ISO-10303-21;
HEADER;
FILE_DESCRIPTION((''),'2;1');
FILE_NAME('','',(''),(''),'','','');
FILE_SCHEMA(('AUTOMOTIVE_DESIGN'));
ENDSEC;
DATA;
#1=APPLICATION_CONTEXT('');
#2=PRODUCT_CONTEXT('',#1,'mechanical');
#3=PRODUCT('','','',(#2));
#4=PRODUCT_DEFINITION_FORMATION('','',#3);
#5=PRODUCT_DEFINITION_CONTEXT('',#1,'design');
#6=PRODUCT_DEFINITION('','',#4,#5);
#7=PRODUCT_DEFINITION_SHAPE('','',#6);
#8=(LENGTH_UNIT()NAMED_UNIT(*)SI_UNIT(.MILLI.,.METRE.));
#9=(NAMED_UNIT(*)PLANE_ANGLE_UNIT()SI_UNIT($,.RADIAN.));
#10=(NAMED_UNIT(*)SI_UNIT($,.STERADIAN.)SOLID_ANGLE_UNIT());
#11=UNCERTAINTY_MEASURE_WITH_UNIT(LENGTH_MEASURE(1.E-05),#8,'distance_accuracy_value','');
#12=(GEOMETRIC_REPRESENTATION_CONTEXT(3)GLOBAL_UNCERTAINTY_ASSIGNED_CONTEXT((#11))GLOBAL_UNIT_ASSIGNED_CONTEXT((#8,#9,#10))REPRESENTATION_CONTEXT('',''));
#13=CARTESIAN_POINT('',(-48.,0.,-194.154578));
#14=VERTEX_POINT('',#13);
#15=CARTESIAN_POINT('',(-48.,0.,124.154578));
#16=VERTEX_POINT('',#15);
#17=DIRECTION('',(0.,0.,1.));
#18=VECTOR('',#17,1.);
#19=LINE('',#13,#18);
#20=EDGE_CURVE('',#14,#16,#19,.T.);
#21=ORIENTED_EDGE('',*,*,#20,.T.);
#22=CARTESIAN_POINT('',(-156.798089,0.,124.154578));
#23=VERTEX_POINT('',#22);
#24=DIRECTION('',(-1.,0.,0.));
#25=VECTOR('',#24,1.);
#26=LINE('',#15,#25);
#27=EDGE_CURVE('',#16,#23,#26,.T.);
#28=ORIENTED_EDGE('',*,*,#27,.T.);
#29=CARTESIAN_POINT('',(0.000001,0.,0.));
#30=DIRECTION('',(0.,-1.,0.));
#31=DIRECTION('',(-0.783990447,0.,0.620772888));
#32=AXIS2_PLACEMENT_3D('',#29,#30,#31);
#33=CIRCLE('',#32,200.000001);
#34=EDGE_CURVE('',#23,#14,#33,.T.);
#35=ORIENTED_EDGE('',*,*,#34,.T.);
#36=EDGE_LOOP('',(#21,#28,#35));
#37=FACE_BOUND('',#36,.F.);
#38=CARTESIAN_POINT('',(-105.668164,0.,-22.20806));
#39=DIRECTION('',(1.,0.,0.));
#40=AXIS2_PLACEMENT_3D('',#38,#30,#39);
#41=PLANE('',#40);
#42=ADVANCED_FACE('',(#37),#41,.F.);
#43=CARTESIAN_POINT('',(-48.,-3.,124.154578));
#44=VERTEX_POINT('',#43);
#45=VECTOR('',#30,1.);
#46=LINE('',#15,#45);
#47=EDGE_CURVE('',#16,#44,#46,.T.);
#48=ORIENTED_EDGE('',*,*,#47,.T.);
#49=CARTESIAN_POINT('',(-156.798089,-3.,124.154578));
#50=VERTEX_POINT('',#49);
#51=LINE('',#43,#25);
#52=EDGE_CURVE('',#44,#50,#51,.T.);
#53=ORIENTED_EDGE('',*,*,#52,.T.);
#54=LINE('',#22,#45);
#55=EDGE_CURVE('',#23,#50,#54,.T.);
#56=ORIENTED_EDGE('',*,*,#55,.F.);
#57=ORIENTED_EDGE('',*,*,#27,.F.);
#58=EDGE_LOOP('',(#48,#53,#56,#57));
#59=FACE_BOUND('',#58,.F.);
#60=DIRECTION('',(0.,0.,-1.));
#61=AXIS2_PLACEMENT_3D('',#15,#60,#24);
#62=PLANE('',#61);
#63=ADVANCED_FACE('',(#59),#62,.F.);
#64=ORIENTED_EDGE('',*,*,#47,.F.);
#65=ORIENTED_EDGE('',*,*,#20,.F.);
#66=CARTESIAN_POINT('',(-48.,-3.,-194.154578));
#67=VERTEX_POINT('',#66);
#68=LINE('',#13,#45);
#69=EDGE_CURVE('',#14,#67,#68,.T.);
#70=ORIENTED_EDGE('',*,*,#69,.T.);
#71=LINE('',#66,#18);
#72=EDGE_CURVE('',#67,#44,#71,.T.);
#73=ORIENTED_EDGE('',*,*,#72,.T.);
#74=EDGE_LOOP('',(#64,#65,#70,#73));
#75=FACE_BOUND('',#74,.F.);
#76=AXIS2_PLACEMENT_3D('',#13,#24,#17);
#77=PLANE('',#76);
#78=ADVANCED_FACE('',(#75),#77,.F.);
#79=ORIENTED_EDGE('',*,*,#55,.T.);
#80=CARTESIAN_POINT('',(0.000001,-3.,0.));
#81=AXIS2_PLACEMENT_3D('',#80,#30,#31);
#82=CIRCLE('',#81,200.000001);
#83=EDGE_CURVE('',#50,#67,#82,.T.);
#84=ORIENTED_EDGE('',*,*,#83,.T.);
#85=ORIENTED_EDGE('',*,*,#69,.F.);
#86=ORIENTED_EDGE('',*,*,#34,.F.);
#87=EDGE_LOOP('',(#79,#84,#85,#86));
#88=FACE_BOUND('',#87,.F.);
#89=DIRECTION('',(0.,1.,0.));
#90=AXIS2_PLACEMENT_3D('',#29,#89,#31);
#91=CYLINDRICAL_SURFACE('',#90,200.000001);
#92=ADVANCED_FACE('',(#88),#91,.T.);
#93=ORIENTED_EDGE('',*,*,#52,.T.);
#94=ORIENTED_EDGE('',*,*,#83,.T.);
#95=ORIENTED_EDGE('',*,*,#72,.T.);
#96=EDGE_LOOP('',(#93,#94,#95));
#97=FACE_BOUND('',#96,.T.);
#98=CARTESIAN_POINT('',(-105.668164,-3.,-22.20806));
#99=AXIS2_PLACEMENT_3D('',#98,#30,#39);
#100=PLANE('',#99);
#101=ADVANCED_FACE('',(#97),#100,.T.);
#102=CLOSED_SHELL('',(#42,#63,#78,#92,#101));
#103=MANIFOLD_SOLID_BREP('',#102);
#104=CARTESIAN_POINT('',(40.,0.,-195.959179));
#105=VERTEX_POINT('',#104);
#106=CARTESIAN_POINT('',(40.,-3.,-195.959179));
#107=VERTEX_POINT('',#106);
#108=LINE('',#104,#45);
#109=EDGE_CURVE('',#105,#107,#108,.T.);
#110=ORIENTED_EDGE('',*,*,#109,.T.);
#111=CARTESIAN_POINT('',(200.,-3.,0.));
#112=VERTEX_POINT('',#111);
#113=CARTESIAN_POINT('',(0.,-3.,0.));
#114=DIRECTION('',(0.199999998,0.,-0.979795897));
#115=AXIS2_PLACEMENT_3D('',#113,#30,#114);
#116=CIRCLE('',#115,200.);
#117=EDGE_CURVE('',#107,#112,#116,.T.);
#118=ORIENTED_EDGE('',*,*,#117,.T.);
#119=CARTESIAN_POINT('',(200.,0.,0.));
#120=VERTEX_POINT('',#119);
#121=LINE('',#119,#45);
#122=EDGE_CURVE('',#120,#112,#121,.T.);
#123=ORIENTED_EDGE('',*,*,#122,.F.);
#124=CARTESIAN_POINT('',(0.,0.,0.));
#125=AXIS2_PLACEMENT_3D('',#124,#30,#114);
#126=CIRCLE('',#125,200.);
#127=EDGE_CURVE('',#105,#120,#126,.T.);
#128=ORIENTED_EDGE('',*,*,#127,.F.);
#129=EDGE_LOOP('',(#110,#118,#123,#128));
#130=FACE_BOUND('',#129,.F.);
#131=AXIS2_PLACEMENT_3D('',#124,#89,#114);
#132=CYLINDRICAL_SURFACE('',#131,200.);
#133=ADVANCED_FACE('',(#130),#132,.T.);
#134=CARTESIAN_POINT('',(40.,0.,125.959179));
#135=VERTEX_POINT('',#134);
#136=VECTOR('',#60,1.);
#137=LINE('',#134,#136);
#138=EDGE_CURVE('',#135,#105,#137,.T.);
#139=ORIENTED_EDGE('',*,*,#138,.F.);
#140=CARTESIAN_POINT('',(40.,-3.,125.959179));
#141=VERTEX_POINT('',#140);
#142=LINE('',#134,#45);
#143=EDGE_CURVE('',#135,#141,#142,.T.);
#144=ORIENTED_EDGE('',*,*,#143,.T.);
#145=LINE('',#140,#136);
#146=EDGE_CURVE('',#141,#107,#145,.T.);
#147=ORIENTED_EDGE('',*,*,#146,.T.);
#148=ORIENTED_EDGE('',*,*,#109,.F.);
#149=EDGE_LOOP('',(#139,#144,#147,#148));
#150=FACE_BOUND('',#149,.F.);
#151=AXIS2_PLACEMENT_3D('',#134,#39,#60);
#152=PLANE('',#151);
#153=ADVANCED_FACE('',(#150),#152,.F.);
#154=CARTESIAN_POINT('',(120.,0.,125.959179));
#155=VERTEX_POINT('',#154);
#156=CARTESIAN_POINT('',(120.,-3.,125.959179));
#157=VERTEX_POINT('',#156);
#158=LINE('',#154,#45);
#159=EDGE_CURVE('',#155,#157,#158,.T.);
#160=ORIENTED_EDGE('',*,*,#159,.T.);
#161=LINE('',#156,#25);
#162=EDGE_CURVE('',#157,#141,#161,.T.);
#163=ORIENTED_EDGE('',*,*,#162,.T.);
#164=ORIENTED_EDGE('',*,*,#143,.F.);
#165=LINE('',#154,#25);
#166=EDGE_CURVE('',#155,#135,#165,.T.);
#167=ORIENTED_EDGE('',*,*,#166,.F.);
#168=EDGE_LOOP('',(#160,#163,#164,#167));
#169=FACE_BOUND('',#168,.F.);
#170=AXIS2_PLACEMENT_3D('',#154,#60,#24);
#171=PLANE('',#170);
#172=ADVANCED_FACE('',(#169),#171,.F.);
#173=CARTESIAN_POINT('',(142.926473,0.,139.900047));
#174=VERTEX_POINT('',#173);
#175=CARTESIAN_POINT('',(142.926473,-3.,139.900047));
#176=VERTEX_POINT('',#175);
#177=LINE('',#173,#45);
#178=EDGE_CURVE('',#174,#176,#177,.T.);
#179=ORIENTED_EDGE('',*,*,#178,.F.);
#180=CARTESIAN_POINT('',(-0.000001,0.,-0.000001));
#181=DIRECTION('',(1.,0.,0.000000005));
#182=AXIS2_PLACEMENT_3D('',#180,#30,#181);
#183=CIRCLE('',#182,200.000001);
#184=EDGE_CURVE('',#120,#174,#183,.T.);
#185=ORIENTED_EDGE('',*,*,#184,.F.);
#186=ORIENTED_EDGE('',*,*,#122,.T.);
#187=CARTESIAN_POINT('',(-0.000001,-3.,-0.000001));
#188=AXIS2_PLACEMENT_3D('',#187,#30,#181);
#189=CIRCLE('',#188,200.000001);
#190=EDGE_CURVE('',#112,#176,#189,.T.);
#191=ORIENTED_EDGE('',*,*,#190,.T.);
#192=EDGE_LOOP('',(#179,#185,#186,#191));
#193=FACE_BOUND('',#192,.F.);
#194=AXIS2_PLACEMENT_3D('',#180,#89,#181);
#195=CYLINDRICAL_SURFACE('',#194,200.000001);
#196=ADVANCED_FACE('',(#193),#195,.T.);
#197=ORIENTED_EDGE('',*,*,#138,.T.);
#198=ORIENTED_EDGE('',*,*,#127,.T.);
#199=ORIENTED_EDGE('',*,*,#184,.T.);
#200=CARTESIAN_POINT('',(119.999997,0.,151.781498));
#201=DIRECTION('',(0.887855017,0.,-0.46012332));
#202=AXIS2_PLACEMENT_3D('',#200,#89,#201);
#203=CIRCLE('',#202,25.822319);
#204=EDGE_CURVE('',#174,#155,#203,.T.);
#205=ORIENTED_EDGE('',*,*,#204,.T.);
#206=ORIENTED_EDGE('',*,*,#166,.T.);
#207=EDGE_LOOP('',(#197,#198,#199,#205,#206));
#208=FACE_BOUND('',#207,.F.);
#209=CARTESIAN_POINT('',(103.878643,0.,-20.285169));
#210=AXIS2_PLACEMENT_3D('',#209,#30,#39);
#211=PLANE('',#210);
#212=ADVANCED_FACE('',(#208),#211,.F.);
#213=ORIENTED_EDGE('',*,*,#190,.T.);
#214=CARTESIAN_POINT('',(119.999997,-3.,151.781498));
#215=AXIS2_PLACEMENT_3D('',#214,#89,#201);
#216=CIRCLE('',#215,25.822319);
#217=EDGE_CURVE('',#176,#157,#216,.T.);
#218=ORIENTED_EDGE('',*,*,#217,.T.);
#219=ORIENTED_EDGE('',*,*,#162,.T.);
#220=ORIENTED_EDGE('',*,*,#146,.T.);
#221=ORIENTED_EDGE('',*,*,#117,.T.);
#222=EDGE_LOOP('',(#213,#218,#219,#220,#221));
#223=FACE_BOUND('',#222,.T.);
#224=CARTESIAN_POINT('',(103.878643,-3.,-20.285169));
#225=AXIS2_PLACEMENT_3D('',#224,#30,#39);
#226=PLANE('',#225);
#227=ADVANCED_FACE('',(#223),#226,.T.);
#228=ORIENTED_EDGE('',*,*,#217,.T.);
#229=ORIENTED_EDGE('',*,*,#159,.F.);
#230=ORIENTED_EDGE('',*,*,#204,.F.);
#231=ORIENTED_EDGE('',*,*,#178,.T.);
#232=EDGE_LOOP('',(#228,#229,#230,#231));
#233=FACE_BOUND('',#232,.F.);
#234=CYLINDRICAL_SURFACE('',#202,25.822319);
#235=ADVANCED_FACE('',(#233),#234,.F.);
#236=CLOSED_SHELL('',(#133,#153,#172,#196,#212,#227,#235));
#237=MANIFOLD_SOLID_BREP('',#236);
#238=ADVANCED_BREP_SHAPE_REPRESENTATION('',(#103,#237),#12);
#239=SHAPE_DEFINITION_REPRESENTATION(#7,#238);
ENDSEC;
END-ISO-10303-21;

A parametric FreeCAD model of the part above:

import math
import FreeCAD as App
import Part
import Sketcher
from FreeCAD import Vector

doc = App.newDocument("Part")
params = doc.addObject("Spreadsheet::Sheet", "Params")
for row, (alias, value) in enumerate([
    ("sketch1_radius", "200 mm"),
    ("sketch1_width", "80 mm"),
    ("pad1_length", "3 mm"),
    ("sketch2_radius", "200.000001 mm"),
    ("pad2_length", "3 mm"),
], start=1):
    params.set(f"A{row}", alias)
    params.set(f"B{row}", "=" + value)
    params.setAlias(f"B{row}", alias)

body = doc.addObject("PartDesign::Body", "Body")

# Sketch on XZ plane
sketch1 = body.newObject("Sketcher::SketchObject", "Sketch")
sketch1.AttachmentSupport = (doc.getObject("XZ_Plane"), [""])
sketch1.MapMode = "FlatFace"
sketch1.addGeometry([
    Part.ArcOfCircle(Part.Circle(Vector(0, 0, 0), Vector(0, 0, 1), 200), math.radians(-78.463041), math.radians(0)),  # 0
    Part.ArcOfCircle(Part.Circle(Vector(-0.000001, -0.000001, 0), Vector(0, 0, 1), 200.000001), math.radians(0), math.radians(44.386922)),  # 1
    Part.ArcOfCircle(Part.Circle(Vector(119.999997, 151.781498, 0), Vector(0, 0, 1), 25.822319), math.radians(-89.999994), math.radians(-27.395065)),  # 2
    Part.LineSegment(Vector(120, 125.959179, 0), Vector(40, 125.959179, 0)),  # 3
    Part.LineSegment(Vector(40, 125.959179, 0), Vector(40, -195.959179, 0)),  # 4
], False)
sketch1.addConstraint([
    Sketcher.Constraint("Tangent", 0, 2, 1, 1),
    Sketcher.Constraint("Coincident", 1, 2, 2, 2),
    Sketcher.Constraint("Tangent", 2, 1, 3, 1),
    Sketcher.Constraint("Coincident", 3, 2, 4, 1),
    Sketcher.Constraint("Coincident", 4, 2, 0, 1),
    Sketcher.Constraint("Horizontal", 3),
    Sketcher.Constraint("Vertical", 4),
    Sketcher.Constraint("Coincident", 0, 3, -1, 1),
    Sketcher.Constraint("Equal", 0, 1),
    Sketcher.Constraint("PointOnObject", 0, 2, -1),
    Sketcher.Constraint("Radius", 0, 200.0),
    Sketcher.Constraint("DistanceX", 3, 2, 3, 1, 80.0),
    Sketcher.Constraint("DistanceX", -1, 1, 2, 1, 120.0),
    Sketcher.Constraint("Radius", 2, 25.822319),
    Sketcher.Constraint("DistanceY", 4, 2, 4, 1, 321.918358),
])
sketch1.setExpression("Constraints[10]", "Params.sketch1_radius")
sketch1.setExpression("Constraints[11]", "Params.sketch1_width")
pad1 = body.newObject("PartDesign::Pad", "Pad")
pad1.Profile = sketch1
pad1.setExpression("Length", "Params.pad1_length")
body2 = doc.addObject("PartDesign::Body", "Body001")

# Sketch on XZ plane
sketch2 = body2.newObject("Sketcher::SketchObject", "Sketch001")
sketch2.AttachmentSupport = (doc.getObject("XZ_Plane001"), [""])
sketch2.MapMode = "FlatFace"
sketch2.addGeometry([
    Part.ArcOfCircle(Part.Circle(Vector(0.000001, 0, 0), Vector(0, 0, 1), 200.000001), math.radians(141.627403), math.radians(256.113459)),
    Part.LineSegment(Vector(-48, -194.154578, 0), Vector(-48, 124.154578, 0)),
    Part.LineSegment(Vector(-48, 124.154578, 0), Vector(-156.798089, 124.154578, 0)),
], False)
sketch2.addConstraint([
    Sketcher.Constraint("Coincident", 0, 2, 1, 1),
    Sketcher.Constraint("Coincident", 1, 2, 2, 1),
    Sketcher.Constraint("Coincident", 2, 2, 0, 1),
    Sketcher.Constraint("Vertical", 1),
    Sketcher.Constraint("Horizontal", 2),
    Sketcher.Constraint("Coincident", 0, 3, -1, 1),
    Sketcher.Constraint("Radius", 0, 200.000001),
    Sketcher.Constraint("DistanceX", 0, 2, -1, 1, 48.0),
    Sketcher.Constraint("DistanceX", 2, 2, 2, 1, 108.798089),
])
sketch2.setExpression("Constraints[6]", "Params.sketch2_radius")
pad2 = body2.newObject("PartDesign::Pad", "Pad001")
pad2.Profile = sketch2
pad2.setExpression("Length", "Params.pad2_length")

doc.recompute()
